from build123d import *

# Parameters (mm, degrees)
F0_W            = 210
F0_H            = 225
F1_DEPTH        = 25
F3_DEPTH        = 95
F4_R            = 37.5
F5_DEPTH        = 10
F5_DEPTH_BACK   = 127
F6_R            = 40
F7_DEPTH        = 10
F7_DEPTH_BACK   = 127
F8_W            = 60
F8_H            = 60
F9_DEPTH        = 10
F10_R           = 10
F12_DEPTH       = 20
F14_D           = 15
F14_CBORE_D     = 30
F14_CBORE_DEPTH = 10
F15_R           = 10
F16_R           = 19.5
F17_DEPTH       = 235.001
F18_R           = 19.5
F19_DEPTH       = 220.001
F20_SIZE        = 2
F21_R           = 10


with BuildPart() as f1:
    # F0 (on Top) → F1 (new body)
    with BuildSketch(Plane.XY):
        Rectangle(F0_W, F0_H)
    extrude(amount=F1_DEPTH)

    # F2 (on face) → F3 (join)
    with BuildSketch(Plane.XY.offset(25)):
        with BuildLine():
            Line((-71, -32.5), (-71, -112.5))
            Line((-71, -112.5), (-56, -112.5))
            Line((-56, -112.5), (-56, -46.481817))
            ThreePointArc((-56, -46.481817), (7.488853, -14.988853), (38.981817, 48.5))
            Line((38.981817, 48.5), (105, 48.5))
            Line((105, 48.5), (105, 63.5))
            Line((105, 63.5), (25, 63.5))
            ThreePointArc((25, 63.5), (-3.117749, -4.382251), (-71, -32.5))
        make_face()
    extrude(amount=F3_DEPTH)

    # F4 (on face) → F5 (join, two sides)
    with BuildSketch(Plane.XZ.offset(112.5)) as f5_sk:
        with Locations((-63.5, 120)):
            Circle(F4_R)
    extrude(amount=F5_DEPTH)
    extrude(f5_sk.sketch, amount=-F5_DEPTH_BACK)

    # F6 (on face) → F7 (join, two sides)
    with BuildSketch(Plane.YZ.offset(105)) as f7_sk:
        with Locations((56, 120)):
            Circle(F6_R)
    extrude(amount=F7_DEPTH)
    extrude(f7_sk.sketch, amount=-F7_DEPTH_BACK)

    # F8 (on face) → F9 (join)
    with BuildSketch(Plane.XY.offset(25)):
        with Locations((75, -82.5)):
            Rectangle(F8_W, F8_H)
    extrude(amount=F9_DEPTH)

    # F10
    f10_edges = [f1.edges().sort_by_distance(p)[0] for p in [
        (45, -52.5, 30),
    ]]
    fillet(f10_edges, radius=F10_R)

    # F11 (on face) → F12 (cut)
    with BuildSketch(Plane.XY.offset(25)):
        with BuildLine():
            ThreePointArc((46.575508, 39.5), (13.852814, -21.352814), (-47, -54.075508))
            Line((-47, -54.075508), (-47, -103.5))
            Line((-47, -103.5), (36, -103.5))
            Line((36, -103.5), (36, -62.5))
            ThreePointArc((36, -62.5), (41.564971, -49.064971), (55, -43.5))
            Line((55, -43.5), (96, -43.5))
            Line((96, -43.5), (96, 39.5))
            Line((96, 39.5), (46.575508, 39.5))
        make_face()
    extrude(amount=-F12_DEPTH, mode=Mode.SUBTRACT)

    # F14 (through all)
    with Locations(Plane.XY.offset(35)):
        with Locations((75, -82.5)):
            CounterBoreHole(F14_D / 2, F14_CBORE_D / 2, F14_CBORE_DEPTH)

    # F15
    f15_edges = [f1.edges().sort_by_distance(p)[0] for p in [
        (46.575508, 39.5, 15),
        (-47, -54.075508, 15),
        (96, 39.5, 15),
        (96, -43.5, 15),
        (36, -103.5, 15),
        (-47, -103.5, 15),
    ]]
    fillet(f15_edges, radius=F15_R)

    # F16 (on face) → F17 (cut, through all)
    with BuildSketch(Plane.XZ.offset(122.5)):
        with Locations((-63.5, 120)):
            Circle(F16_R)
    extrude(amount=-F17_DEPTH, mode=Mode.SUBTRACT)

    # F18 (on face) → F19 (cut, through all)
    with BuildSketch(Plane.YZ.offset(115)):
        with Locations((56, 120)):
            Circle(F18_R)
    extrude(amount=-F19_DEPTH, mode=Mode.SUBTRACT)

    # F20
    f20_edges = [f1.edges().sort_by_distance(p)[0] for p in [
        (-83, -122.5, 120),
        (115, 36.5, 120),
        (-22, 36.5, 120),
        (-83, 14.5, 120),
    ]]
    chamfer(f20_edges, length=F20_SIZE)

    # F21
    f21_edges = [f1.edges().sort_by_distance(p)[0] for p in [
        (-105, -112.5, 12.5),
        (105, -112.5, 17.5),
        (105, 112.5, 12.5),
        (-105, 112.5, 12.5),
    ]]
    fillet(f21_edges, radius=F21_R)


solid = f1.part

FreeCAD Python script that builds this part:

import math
import FreeCAD as App
import Part
import Sketcher
Q = App.Units.Quantity


def edges_at(feature, points):
    """Names of the edges that pass closest to the given points."""
    edges = feature.Shape.Edges
    near = lambda p: min(range(len(edges)), key=lambda i: edges[i].distToShape(Part.Vertex(*p))[0])
    return sorted({f"Edge{near(p) + 1}" for p in points})


def add_polygon(sketch, points):
    """Adds a closed chain of lines whose ends are joined by coincident constraints."""
    first, n = sketch.GeometryCount, len(points)
    for a, b in zip(points, points[1:] + points[:1]):
        sketch.addGeometry(Part.LineSegment(App.Vector(*a, 0), App.Vector(*b, 0)), False)
    for i in range(n):
        sketch.addConstraint(Sketcher.Constraint("Coincident", first + i, 2, first + (i + 1) % n, 1))

doc = App.newDocument("Part")
body = doc.addObject("PartDesign::Body", "Body")

sketch1 = body.newObject("Sketcher::SketchObject", "Sketch")
sketch1.AttachmentSupport = (doc.getObject("XY_Plane"), [""])
sketch1.MapMode = "FlatFace"
add_polygon(sketch1, [(-105, 112), (-105, -112), (105, -112), (105, 112)])
sketch1.addConstraint([
    Sketcher.Constraint("Vertical", 0),
    Sketcher.Constraint("Horizontal", 1),
    Sketcher.Constraint("Vertical", 2),
    Sketcher.Constraint("Horizontal", 3),
    Sketcher.Constraint("Symmetric", 0, 2, 2, 2, -1, 1),
    Sketcher.Constraint("DistanceX", 1, 1, 1, 2, Q("210 mm")),
    Sketcher.Constraint("DistanceY", 0, 2, 0, 1, Q("225 mm")),
])
pad1 = body.newObject("PartDesign::Pad", "Pad")
pad1.Profile = sketch1
pad1.Length = 25

sketch2 = body.newObject("Sketcher::SketchObject", "Sketch001")
sketch2.AttachmentSupport = (doc.getObject("XY_Plane"), [""])
sketch2.MapMode = "FlatFace"
sketch2.AttachmentOffset = App.Placement(App.Vector(0, 0, 25), App.Rotation())
sketch2.addGeometry([
    Part.LineSegment(App.Vector(-71, -32, 0), App.Vector(-71, -112, 0)),
    Part.LineSegment(App.Vector(-71, -112, 0), App.Vector(-56, -112, 0)),
    Part.LineSegment(App.Vector(-56, -112, 0), App.Vector(-56, -46, 0)),
    Part.ArcOfCircle(Part.Circle(App.Vector(-71, 63, 0), App.Vector(0, 0, 1), 111), math.radians(-82), math.radians(-8)),
    Part.LineSegment(App.Vector(39, 48, 0), App.Vector(105, 48, 0)),
    Part.LineSegment(App.Vector(105, 48, 0), App.Vector(105, 64, 0)),
    Part.LineSegment(App.Vector(105, 64, 0), App.Vector(25, 64, 0)),
    Part.ArcOfCircle(Part.Circle(App.Vector(-71, 63, 0), App.Vector(0, 0, 1), 96), math.radians(-90), math.radians(0)),
], False)
sketch2.addConstraint([
    Sketcher.Constraint("Coincident", 0, 2, 1, 1),
    Sketcher.Constraint("Coincident", 1, 2, 2, 1),
    Sketcher.Constraint("Coincident", 2, 2, 3, 1),
    Sketcher.Constraint("Coincident", 3, 2, 4, 1),
    Sketcher.Constraint("Coincident", 4, 2, 5, 1),
    Sketcher.Constraint("Coincident", 5, 2, 6, 1),
    Sketcher.Constraint("Coincident", 6, 2, 7, 2),
    Sketcher.Constraint("Coincident", 7, 1, 0, 1),
    Sketcher.Constraint("Vertical", 0),
    Sketcher.Constraint("Horizontal", 1),
    Sketcher.Constraint("Vertical", 2),
    Sketcher.Constraint("Horizontal", 4),
    Sketcher.Constraint("Vertical", 5),
    Sketcher.Constraint("Horizontal", 6),
    Sketcher.Constraint("Coincident", 7, 3, 3, 3),
    Sketcher.Constraint("Horizontal", 7, 3, 5, 2),
    Sketcher.Constraint("Vertical", 7, 3, 0, 2),
    Sketcher.Constraint("Equal", 6, 0),
    Sketcher.Constraint("Equal", 4, 2),
    Sketcher.Constraint("Radius", 3, Q("111 mm")),
    Sketcher.Constraint("Radius", 7, Q("96 mm")),
    Sketcher.Constraint("DistanceX", 1, 1, 1, 2, Q("15 mm")),
    Sketcher.Constraint("DistanceX", 6, 2, 6, 1, Q("80 mm")),
    Sketcher.Constraint("DistanceX", 3, 3, -1, 1, Q("71 mm")),
    Sketcher.Constraint("DistanceY", -1, 1, 3, 3, Q("63.5 mm")),
])
pad2 = body.newObject("PartDesign::Pad", "Pad001")
pad2.Profile = sketch2
pad2.Length = 95

sketch3 = body.newObject("Sketcher::SketchObject", "Sketch002")
sketch3.AttachmentSupport = (doc.getObject("XZ_Plane"), [""])
sketch3.MapMode = "FlatFace"
sketch3.AttachmentOffset = App.Placement(App.Vector(0, 0, 112.5), App.Rotation())
sketch3.addGeometry(Part.Circle(App.Vector(-64, 120, 0), App.Vector(0, 0, 1), 38), False)
sketch3.addConstraint([
    Sketcher.Constraint("Diameter", 0, Q("75 mm")),
    Sketcher.Constraint("DistanceY", -1, 1, 0, 3, Q("120 mm")),
    Sketcher.Constraint("DistanceX", 0, 3, -1, 1, Q("63.5 mm")),
])
pad3 = body.newObject("PartDesign::Pad", "Pad002")
pad3.Profile = sketch3
pad3.Type = "TwoLengths"
pad3.Length = 10
pad3.Length2 = 127

sketch4 = body.newObject("Sketcher::SketchObject", "Sketch003")
sketch4.AttachmentSupport = (doc.getObject("YZ_Plane"), [""])
sketch4.MapMode = "FlatFace"
sketch4.AttachmentOffset = App.Placement(App.Vector(0, 0, 105), App.Rotation())
sketch4.addGeometry(Part.Circle(App.Vector(56, 120, 0), App.Vector(0, 0, 1), 40), False)
sketch4.addConstraint([
    Sketcher.Constraint("Diameter", 0, Q("80 mm")),
    Sketcher.Constraint("DistanceX", -1, 1, 0, 3, Q("56 mm")),
    Sketcher.Constraint("DistanceY", -1, 1, 0, 3, Q("120 mm")),
])
pad4 = body.newObject("PartDesign::Pad", "Pad003")
pad4.Profile = sketch4
pad4.Type = "TwoLengths"
pad4.Length = 10
pad4.Length2 = 127

sketch5 = body.newObject("Sketcher::SketchObject", "Sketch004")
sketch5.AttachmentSupport = (doc.getObject("XY_Plane"), [""])
sketch5.MapMode = "FlatFace"
sketch5.AttachmentOffset = App.Placement(App.Vector(0, 0, 25), App.Rotation())
add_polygon(sketch5, [(45, -52), (45, -112), (105, -112), (105, -52)])
sketch5.addConstraint([
    Sketcher.Constraint("Vertical", 0),
    Sketcher.Constraint("Horizontal", 1),
    Sketcher.Constraint("Vertical", 2),
    Sketcher.Constraint("Horizontal", 3),
    Sketcher.Constraint("Equal", 3, 0),
    Sketcher.Constraint("DistanceX", 1, 1, 1, 2, Q("60 mm")),
    Sketcher.Constraint("DistanceX", -1, 1, 0, 2, Q("45 mm")),
    Sketcher.Constraint("DistanceY", 0, 2, -1, 1, Q("112.5 mm")),
])
pad5 = body.newObject("PartDesign::Pad", "Pad004")
pad5.Profile = sketch5
pad5.Length = 10
doc.recompute()

fillet = body.newObject("PartDesign::Fillet", "Fillet")
fillet.Base = (pad5, edges_at(pad5, [(45, -52.5, 30)]))
fillet.Radius = 10

sketch6 = body.newObject("Sketcher::SketchObject", "Sketch005")
sketch6.AttachmentSupport = (doc.getObject("XY_Plane"), [""])
sketch6.MapMode = "FlatFace"
sketch6.AttachmentOffset = App.Placement(App.Vector(0, 0, 25), App.Rotation())
sketch6.addGeometry([
    Part.ArcOfCircle(Part.Circle(App.Vector(-71, 63, 0), App.Vector(0, 0, 1), 120), math.radians(-78), math.radians(-12)),
    Part.LineSegment(App.Vector(-47, -54, 0), App.Vector(-47, -104, 0)),
    Part.LineSegment(App.Vector(-47, -104, 0), App.Vector(36, -104, 0)),
    Part.LineSegment(App.Vector(36, -104, 0), App.Vector(36, -62, 0)),
    Part.ArcOfCircle(Part.Circle(App.Vector(55, -62, 0), App.Vector(0, 0, 1), 19), math.radians(90), math.radians(180)),
    Part.LineSegment(App.Vector(55, -44, 0), App.Vector(96, -44, 0)),
    Part.LineSegment(App.Vector(96, -44, 0), App.Vector(96, 40, 0)),
    Part.LineSegment(App.Vector(96, 40, 0), App.Vector(47, 40, 0)),
], False)
sketch6.addConstraint([
    Sketcher.Constraint("Coincident", 0, 1, 1, 1),
    Sketcher.Constraint("Coincident", 1, 2, 2, 1),
    Sketcher.Constraint("Coincident", 2, 2, 3, 1),
    Sketcher.Constraint("Tangent", 3, 2, 4, 2),
    Sketcher.Constraint("Tangent", 4, 1, 5, 1),
    Sketcher.Constraint("Coincident", 5, 2, 6, 1),
    Sketcher.Constraint("Coincident", 6, 2, 7, 1),
    Sketcher.Constraint("Coincident", 7, 2, 0, 2),
    Sketcher.Constraint("Vertical", 1),
    Sketcher.Constraint("Horizontal", 2),
    Sketcher.Constraint("Vertical", 3),
    Sketcher.Constraint("Horizontal", 5),
    Sketcher.Constraint("Vertical", 6),
    Sketcher.Constraint("Horizontal", 7),
    Sketcher.Constraint("Equal", 7, 1),
    Sketcher.Constraint("Equal", 5, 3),
    Sketcher.Constraint("Equal", 2, 6),
    Sketcher.Constraint("Radius", 0, Q("120 mm")),
    Sketcher.Constraint("Radius", 4, Q("18.999999 mm")),
    Sketcher.Constraint("DistanceX", 2, 1, 2, 2, Q("83 mm")),
    Sketcher.Constraint("DistanceX", 5, 1, 5, 2, Q("41 mm")),
    Sketcher.Constraint("DistanceX", 0, 3, -1, 1, Q("71 mm")),
    Sketcher.Constraint("DistanceX", -1, 1, 4, 3, Q("54.999999 mm")),
    Sketcher.Constraint("DistanceY", -1, 1, 0, 3, Q("63.5 mm")),
])
pocket1 = body.newObject("PartDesign::Pocket", "Pocket")
pocket1.Profile = sketch6
pocket1.Length = 20

sketch7 = body.newObject("Sketcher::SketchObject", "Sketch006")
sketch7.AttachmentSupport = (doc.getObject("XY_Plane"), [""])
sketch7.MapMode = "FlatFace"
sketch7.AttachmentOffset = App.Placement(App.Vector(0, 0, 35), App.Rotation())
sketch7.addGeometry(Part.Circle(App.Vector(75, -82, 0), App.Vector(0, 0, 1), 8), False)
sketch7.addConstraint([
    Sketcher.Constraint("Diameter", 0, Q("15 mm")),
    Sketcher.Constraint("DistanceX", -1, 1, 0, 3, Q("75 mm")),
    Sketcher.Constraint("DistanceY", 0, 3, -1, 1, Q("82.5 mm")),
])
doc.recompute()
hole = body.newObject("PartDesign::Hole", "Hole")
hole.Profile = sketch7
hole.ThreadType = "None"
hole.Diameter = 15
hole.DepthType = "ThroughAll"
hole.HoleCutType = "Counterbore"
hole.HoleCutDiameter = 30
hole.HoleCutDepth = 10
doc.recompute()

fillet2 = body.newObject("PartDesign::Fillet", "Fillet001")
fillet2.Base = (hole, edges_at(hole, [
    (46.576, 39.5, 15),
    (-47, -54.076, 15),
    (96, 39.5, 15),
    (96, -43.5, 15),
    (36, -103.5, 15),
    (-47, -103.5, 15),
]))
fillet2.Radius = 10

sketch8 = body.newObject("Sketcher::SketchObject", "Sketch007")
sketch8.AttachmentSupport = (doc.getObject("XZ_Plane"), [""])
sketch8.MapMode = "FlatFace"
sketch8.AttachmentOffset = App.Placement(App.Vector(0, 0, 122.5), App.Rotation())
sketch8.addGeometry(Part.Circle(App.Vector(-64, 120, 0), App.Vector(0, 0, 1), 20), False)
sketch8.addConstraint([
    Sketcher.Constraint("Diameter", 0, Q("39 mm")),
    Sketcher.Constraint("DistanceY", -1, 1, 0, 3, Q("120 mm")),
    Sketcher.Constraint("DistanceX", 0, 3, -1, 1, Q("63.5 mm")),
])
pocket2 = body.newObject("PartDesign::Pocket", "Pocket001")
pocket2.Profile = sketch8
pocket2.Type = "ThroughAll"

sketch9 = body.newObject("Sketcher::SketchObject", "Sketch008")
sketch9.AttachmentSupport = (doc.getObject("YZ_Plane"), [""])
sketch9.MapMode = "FlatFace"
sketch9.AttachmentOffset = App.Placement(App.Vector(0, 0, 115), App.Rotation())
sketch9.addGeometry(Part.Circle(App.Vector(56, 120, 0), App.Vector(0, 0, 1), 20), False)
sketch9.addConstraint([
    Sketcher.Constraint("Diameter", 0, Q("39 mm")),
    Sketcher.Constraint("DistanceX", -1, 1, 0, 3, Q("56 mm")),
    Sketcher.Constraint("DistanceY", -1, 1, 0, 3, Q("120 mm")),
])
pocket3 = body.newObject("PartDesign::Pocket", "Pocket002")
pocket3.Profile = sketch9
pocket3.Type = "ThroughAll"
doc.recompute()

chamfer = body.newObject("PartDesign::Chamfer", "Chamfer")
chamfer.Base = (pocket3, edges_at(pocket3, [
    (-83, -122.5, 120),
    (115, 36.5, 120),
    (-22, 36.5, 120),
    (-83, 14.5, 120),
]))
chamfer.Size = 2
doc.recompute()

fillet3 = body.newObject("PartDesign::Fillet", "Fillet002")
fillet3.Base = (chamfer, edges_at(chamfer, [
    (-105, -112.5, 12.5),
    (105, -112.5, 17.5),
    (105, 112.5, 12.5),
    (-105, 112.5, 12.5),
]))
fillet3.Radius = 10

doc.recompute()
